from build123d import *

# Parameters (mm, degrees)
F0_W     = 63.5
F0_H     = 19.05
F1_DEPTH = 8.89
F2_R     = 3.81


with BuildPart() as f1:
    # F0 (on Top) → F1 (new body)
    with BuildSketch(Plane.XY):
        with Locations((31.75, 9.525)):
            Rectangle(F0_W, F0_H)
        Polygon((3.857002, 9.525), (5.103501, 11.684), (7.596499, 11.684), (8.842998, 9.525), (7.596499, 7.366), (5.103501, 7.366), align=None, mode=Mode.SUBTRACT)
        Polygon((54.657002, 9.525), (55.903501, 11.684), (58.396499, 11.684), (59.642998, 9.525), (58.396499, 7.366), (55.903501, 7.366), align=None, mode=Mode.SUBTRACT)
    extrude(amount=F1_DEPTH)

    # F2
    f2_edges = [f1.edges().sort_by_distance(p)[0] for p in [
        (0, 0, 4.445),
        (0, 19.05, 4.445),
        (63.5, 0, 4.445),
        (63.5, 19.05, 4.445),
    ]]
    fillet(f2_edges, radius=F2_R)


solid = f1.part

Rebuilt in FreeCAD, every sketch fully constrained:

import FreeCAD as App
import Part
import Sketcher
from FreeCAD import Vector
Q = App.Units.Quantity


def edges_at(feature, points):
    """Names of the edges that pass closest to the given points."""
    edges = feature.Shape.Edges
    near = lambda p: min(range(len(edges)), key=lambda i: edges[i].distToShape(Part.Vertex(*p))[0])
    return sorted({f"Edge{near(p) + 1}" for p in points})

doc = App.newDocument("Part")
body = doc.addObject("PartDesign::Body", "Body")

# Sketch on XY plane
sketch1 = body.newObject("Sketcher::SketchObject", "Sketch")
sketch1.AttachmentSupport = (doc.getObject("XY_Plane"), [""])
sketch1.MapMode = "FlatFace"
sketch1.addGeometry([
    Part.LineSegment(Vector(0, 19.05, 0), Vector(0, 0, 0)),  # 0
    Part.LineSegment(Vector(0, 0, 0), Vector(63.5, 0, 0)),  # 1
    Part.LineSegment(Vector(63.5, 0, 0), Vector(63.5, 19.05, 0)),  # 2
    Part.LineSegment(Vector(63.5, 19.05, 0), Vector(0, 19.05, 0)),  # 3
    Part.LineSegment(Vector(5.103501, 7.366, 0), Vector(3.857002, 9.525, 0)),  # 4
    Part.LineSegment(Vector(3.857002, 9.525, 0), Vector(5.103501, 11.684, 0)),  # 5
    Part.LineSegment(Vector(5.103501, 11.684, 0), Vector(7.596499, 11.684, 0)),  # 6
    Part.LineSegment(Vector(7.596499, 11.684, 0), Vector(8.842998, 9.525, 0)),  # 7
    Part.LineSegment(Vector(8.842998, 9.525, 0), Vector(7.596499, 7.366, 0)),  # 8
    Part.LineSegment(Vector(7.596499, 7.366, 0), Vector(5.103501, 7.366, 0)),  # 9
    Part.LineSegment(Vector(55.903501, 7.366, 0), Vector(54.657002, 9.525, 0)),  # 10
    Part.LineSegment(Vector(54.657002, 9.525, 0), Vector(55.903501, 11.684, 0)),  # 11
    Part.LineSegment(Vector(55.903501, 11.684, 0), Vector(58.396499, 11.684, 0)),  # 12
    Part.LineSegment(Vector(58.396499, 11.684, 0), Vector(59.642998, 9.525, 0)),  # 13
    Part.LineSegment(Vector(59.642998, 9.525, 0), Vector(58.396499, 7.366, 0)),  # 14
    Part.LineSegment(Vector(58.396499, 7.366, 0), Vector(55.903501, 7.366, 0)),  # 15
], False)
sketch1.addConstraint([
    Sketcher.Constraint("Coincident", 0, 2, 1, 1),
    Sketcher.Constraint("Coincident", 1, 2, 2, 1),
    Sketcher.Constraint("Coincident", 2, 2, 3, 1),
    Sketcher.Constraint("Coincident", 3, 2, 0, 1),
    Sketcher.Constraint("Coincident", 4, 2, 5, 1),
    Sketcher.Constraint("Coincident", 5, 2, 6, 1),
    Sketcher.Constraint("Coincident", 6, 2, 7, 1),
    Sketcher.Constraint("Coincident", 7, 2, 8, 1),
    Sketcher.Constraint("Coincident", 8, 2, 9, 1),
    Sketcher.Constraint("Coincident", 9, 2, 4, 1),
    Sketcher.Constraint("Coincident", 10, 2, 11, 1),
    Sketcher.Constraint("Coincident", 11, 2, 12, 1),
    Sketcher.Constraint("Coincident", 12, 2, 13, 1),
    Sketcher.Constraint("Coincident", 13, 2, 14, 1),
    Sketcher.Constraint("Coincident", 14, 2, 15, 1),
    Sketcher.Constraint("Coincident", 15, 2, 10, 1),
    Sketcher.Constraint("Vertical", 0),
    Sketcher.Constraint("Horizontal", 1),
    Sketcher.Constraint("Vertical", 2),
    Sketcher.Constraint("Horizontal", 3),
    Sketcher.Constraint("Horizontal", 6),
    Sketcher.Constraint("Horizontal", 9),
    Sketcher.Constraint("Horizontal", 12),
    Sketcher.Constraint("Horizontal", 15),
    Sketcher.Constraint("Coincident", 0, 2, -1, 1),
    Sketcher.Constraint("Parallel", 4, 7),
    Sketcher.Constraint("Parallel", 5, 8),
    Sketcher.Constraint("Parallel", 7, 10),
    Sketcher.Constraint("Parallel", 8, 11),
    Sketcher.Constraint("Parallel", 10, 13),
    Sketcher.Constraint("Parallel", 11, 14),
    Sketcher.Constraint("Horizontal", 4, 2, 7, 2),
    Sketcher.Constraint("Horizontal", 7, 2, 10, 2),
    Sketcher.Constraint("Horizontal", 6, 2, 11, 2),
    Sketcher.Constraint("Horizontal", 10, 2, 13, 2),
    Sketcher.Constraint("Horizontal", 9, 2, 14, 2),
    Sketcher.Constraint("Vertical", 6, 2, 8, 2),
    Sketcher.Constraint("Vertical", 5, 2, 9, 2),
    Sketcher.Constraint("Equal", 9, 12),
    Sketcher.Constraint("DistanceX", 1, 1, 1, 2, Q("2.5 in")),
    Sketcher.Constraint("Angle", 4, Q("119.999995 deg")),
    Sketcher.Constraint("DistanceY", 0, 2, 0, 1, Q("0.75 in")),
    Sketcher.Constraint("DistanceY", -1, 1, 5, 2, Q("0.46 in")),
    Sketcher.Constraint("DistanceY", -1, 1, 8, 2, Q("0.29 in")),
    Sketcher.Constraint("DistanceX", 6, 1, 6, 2, Q("2.492998 mm")),
    Sketcher.Constraint("DistanceX", -1, 1, 4, 2, Q("3.857002 mm")),
    Sketcher.Constraint("DistanceX", -1, 1, 11, 2, Q("55.903501 mm")),
])
pad1 = body.newObject("PartDesign::Pad", "Pad")
pad1.Profile = sketch1
pad1.Length = Q("0.35 in")
doc.recompute()

fillet = body.newObject("PartDesign::Fillet", "Fillet")
fillet.Base = (pad1, edges_at(pad1, [
    (0, 0, 4.445),
    (0, 19.05, 4.445),
    (63.5, 0, 4.445),
    (63.5, 19.05, 4.445),
]))
fillet.Radius = Q("0.15 in")

doc.recompute()
